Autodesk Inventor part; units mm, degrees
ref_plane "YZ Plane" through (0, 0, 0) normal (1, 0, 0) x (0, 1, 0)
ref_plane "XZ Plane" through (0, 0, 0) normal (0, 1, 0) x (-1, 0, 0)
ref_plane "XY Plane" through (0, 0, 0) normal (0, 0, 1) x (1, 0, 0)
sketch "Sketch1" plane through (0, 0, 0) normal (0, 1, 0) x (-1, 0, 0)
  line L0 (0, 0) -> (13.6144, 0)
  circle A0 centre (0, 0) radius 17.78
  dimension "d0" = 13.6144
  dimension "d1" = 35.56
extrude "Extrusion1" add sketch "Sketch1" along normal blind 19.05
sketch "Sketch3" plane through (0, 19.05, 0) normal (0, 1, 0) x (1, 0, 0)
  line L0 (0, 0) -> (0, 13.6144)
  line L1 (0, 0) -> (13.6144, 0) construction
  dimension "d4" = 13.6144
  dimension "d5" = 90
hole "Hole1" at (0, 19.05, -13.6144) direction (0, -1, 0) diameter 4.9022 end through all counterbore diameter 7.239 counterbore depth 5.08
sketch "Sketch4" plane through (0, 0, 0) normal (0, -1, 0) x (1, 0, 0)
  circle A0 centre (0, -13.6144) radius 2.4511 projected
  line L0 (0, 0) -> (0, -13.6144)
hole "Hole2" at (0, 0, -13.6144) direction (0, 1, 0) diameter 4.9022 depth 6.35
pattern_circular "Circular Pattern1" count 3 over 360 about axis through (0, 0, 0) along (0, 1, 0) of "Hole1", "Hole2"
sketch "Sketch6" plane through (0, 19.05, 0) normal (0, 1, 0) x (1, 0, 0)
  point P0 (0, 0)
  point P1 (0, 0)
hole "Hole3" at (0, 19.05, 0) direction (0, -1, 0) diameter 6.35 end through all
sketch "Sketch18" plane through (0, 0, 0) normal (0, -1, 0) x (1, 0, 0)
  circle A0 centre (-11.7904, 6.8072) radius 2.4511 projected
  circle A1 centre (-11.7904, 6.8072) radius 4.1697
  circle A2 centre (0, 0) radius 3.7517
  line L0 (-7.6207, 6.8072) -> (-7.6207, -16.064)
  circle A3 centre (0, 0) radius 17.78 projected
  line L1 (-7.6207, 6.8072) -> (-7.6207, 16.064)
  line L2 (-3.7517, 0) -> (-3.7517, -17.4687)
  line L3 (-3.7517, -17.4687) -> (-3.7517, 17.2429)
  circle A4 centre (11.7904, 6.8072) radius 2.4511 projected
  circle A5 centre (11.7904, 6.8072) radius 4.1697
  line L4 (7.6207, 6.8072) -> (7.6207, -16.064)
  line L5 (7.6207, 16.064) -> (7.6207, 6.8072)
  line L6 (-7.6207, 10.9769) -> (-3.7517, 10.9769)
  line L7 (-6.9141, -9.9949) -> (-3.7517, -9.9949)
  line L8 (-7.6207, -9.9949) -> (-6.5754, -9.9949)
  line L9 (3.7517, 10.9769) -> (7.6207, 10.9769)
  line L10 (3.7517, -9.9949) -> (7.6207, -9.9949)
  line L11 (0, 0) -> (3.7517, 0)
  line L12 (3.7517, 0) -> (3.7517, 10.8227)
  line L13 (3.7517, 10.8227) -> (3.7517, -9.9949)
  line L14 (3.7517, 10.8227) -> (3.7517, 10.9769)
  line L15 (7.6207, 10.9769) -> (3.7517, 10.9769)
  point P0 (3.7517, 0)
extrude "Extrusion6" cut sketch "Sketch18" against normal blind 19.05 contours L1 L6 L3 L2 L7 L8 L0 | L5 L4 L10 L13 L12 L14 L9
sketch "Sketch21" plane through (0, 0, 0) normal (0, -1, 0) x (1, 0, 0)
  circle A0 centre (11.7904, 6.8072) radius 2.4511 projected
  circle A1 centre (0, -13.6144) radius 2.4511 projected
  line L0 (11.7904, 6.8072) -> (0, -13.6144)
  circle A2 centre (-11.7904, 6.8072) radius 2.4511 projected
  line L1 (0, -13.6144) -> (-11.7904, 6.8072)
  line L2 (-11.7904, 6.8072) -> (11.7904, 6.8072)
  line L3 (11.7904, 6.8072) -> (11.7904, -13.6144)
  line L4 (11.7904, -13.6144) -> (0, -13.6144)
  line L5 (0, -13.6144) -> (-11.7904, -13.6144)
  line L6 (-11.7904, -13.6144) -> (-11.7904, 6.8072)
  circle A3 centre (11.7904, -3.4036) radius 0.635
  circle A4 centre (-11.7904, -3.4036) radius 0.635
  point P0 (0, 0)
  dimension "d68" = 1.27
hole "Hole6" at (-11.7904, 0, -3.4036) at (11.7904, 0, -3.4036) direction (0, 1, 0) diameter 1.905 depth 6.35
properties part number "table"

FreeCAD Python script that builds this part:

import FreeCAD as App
import Part
import Sketcher
Q = App.Units.Quantity

doc = App.newDocument("Part")
body = doc.addObject("PartDesign::Body", "Body")

# Sketch on XZ plane
sketch1 = doc.addObject("Sketcher::SketchObject", "Sketch")
body.addObject(sketch1)
sketch1.AttachmentSupport = (doc.XZ_Plane, [""])
sketch1.MapMode = "FlatFace"
sketch1.addGeometry(Part.Circle(App.Vector(0, 0, 0), App.Vector(0, 0, 1), 18), False)
sketch1.addConstraint(Sketcher.Constraint("Coincident", 0, 3, -1, 1))
sketch1.addConstraint(Sketcher.Constraint("Diameter", 0, Q("1.4 in")))
pad1 = doc.addObject("PartDesign::Pad", "Pad")
body.addObject(pad1)
pad1.Profile = sketch1
pad1.Length = Q("0.75 in")
pad1.Reversed = True

# Sketch on XZ plane
sketch2 = doc.addObject("Sketcher::SketchObject", "Sketch001")
body.addObject(sketch2)
sketch2.AttachmentSupport = (doc.XZ_Plane, [""])
sketch2.MapMode = "FlatFace"
sketch2.AttachmentOffset = App.Placement(App.Vector(0, 0, -0.75 * 25.4), App.Rotation())
sketch2.addGeometry(Part.Circle(App.Vector(0, -13.6, 0), App.Vector(0, 0, 1), 2.5), False)
sketch2.addConstraint(Sketcher.Constraint("PointOnObject", 0, 3, -2))
sketch2.addConstraint(Sketcher.Constraint("Diameter", 0, Q("0.193 in")))
sketch2.addConstraint(Sketcher.Constraint("DistanceY", 0, 3, -1, 1, Q("0.536 in")))
doc.recompute()
hole = doc.addObject("PartDesign::Hole", "Hole")
body.addObject(hole)
hole.Profile = sketch2
hole.ThreadType = "None"
hole.Diameter = Q("0.193 in")
hole.DepthType = "ThroughAll"
hole.HoleCutType = "Counterbore"
hole.HoleCutDiameter = Q("0.285 in")
hole.HoleCutDepth = Q("0.2 in")
hole.Reversed = True

# Sketch on XZ plane
sketch3 = doc.addObject("Sketcher::SketchObject", "Sketch002")
body.addObject(sketch3)
sketch3.AttachmentSupport = (doc.XZ_Plane, [""])
sketch3.MapMode = "FlatFace"
sketch3.addGeometry(Part.Circle(App.Vector(0, -13.6, 0), App.Vector(0, 0, 1), 2.5), False)
sketch3.addConstraint(Sketcher.Constraint("PointOnObject", 0, 3, -2))
sketch3.addConstraint(Sketcher.Constraint("Diameter", 0, Q("0.193 in")))
sketch3.addConstraint(Sketcher.Constraint("DistanceY", 0, 3, -1, 1, Q("0.536 in")))
doc.recompute()
hole2 = doc.addObject("PartDesign::Hole", "Hole001")
body.addObject(hole2)
hole2.Profile = sketch3
hole2.ThreadType = "None"
hole2.Diameter = Q("0.193 in")
hole2.DepthType = "Dimension"
hole2.Depth = Q("0.25 in")
hole2.DrillPoint = "Flat"
doc.recompute()

polarpattern = doc.addObject("PartDesign::PolarPattern", "PolarPattern")
body.addObject(polarpattern)
polarpattern.Originals = [hole, hole2]
polarpattern.Axis = (doc.Y_Axis, [""])
polarpattern.Angle = 360
polarpattern.Occurrences = 3
body.Tip = polarpattern

# Sketch on XZ plane
sketch4 = doc.addObject("Sketcher::SketchObject", "Sketch003")
body.addObject(sketch4)
sketch4.AttachmentSupport = (doc.XZ_Plane, [""])
sketch4.MapMode = "FlatFace"
sketch4.AttachmentOffset = App.Placement(App.Vector(0, 0, -0.75 * 25.4), App.Rotation())
sketch4.addGeometry(Part.Circle(App.Vector(0, 0, 0), App.Vector(0, 0, 1), 3.2), False)
sketch4.addConstraint(Sketcher.Constraint("Coincident", 0, 3, -1, 1))
sketch4.addConstraint(Sketcher.Constraint("Diameter", 0, Q("0.25 in")))
doc.recompute()
hole3 = doc.addObject("PartDesign::Hole", "Hole002")
body.addObject(hole3)
hole3.Profile = sketch4
hole3.ThreadType = "None"
hole3.Diameter = Q("0.25 in")
hole3.DepthType = "ThroughAll"
hole3.Reversed = True

# Sketch on XZ plane
sketch5 = doc.addObject("Sketcher::SketchObject", "Sketch004")
body.addObject(sketch5)
sketch5.AttachmentSupport = (doc.XZ_Plane, [""])
sketch5.MapMode = "FlatFace"
sketch5.addGeometry(Part.LineSegment(App.Vector(-7.6, 11, 0), App.Vector(-7.6, -10, 0)), False)
sketch5.addGeometry(Part.LineSegment(App.Vector(-7.6, -10, 0), App.Vector(-3.8, -10, 0)), False)
sketch5.addGeometry(Part.LineSegment(App.Vector(-3.8, -10, 0), App.Vector(-3.8, 11, 0)), False)
sketch5.addGeometry(Part.LineSegment(App.Vector(-3.8, 11, 0), App.Vector(-7.6, 11, 0)), False)
sketch5.addGeometry(Part.LineSegment(App.Vector(7.6, -10, 0), App.Vector(7.6, 11, 0)), False)
sketch5.addGeometry(Part.LineSegment(App.Vector(7.6, 11, 0), App.Vector(3.8, 11, 0)), False)
sketch5.addGeometry(Part.LineSegment(App.Vector(3.8, 11, 0), App.Vector(3.8, -10, 0)), False)
sketch5.addGeometry(Part.LineSegment(App.Vector(3.8, -10, 0), App.Vector(7.6, -10, 0)), False)
sketch5.addConstraint(Sketcher.Constraint("Coincident", 0, 2, 1, 1))
sketch5.addConstraint(Sketcher.Constraint("Coincident", 1, 2, 2, 1))
sketch5.addConstraint(Sketcher.Constraint("Coincident", 2, 2, 3, 1))
sketch5.addConstraint(Sketcher.Constraint("Coincident", 3, 2, 0, 1))
sketch5.addConstraint(Sketcher.Constraint("Coincident", 4, 2, 5, 1))
sketch5.addConstraint(Sketcher.Constraint("Coincident", 5, 2, 6, 1))
sketch5.addConstraint(Sketcher.Constraint("Coincident", 6, 2, 7, 1))
sketch5.addConstraint(Sketcher.Constraint("Coincident", 7, 2, 4, 1))
sketch5.addConstraint(Sketcher.Constraint("Vertical", 0))
sketch5.addConstraint(Sketcher.Constraint("Horizontal", 1))
sketch5.addConstraint(Sketcher.Constraint("Vertical", 2))
sketch5.addConstraint(Sketcher.Constraint("Horizontal", 3))
sketch5.addConstraint(Sketcher.Constraint("Vertical", 4))
sketch5.addConstraint(Sketcher.Constraint("Horizontal", 5))
sketch5.addConstraint(Sketcher.Constraint("Vertical", 6))
sketch5.addConstraint(Sketcher.Constraint("Horizontal", 7))
sketch5.addConstraint(Sketcher.Constraint("Symmetric", 3, 2, 4, 2, -2))
sketch5.addConstraint(Sketcher.Constraint("Symmetric", 1, 2, 6, 2, -2))
sketch5.addConstraint(Sketcher.Constraint("DistanceX", 1, 1, 1, 2, 3.869))
sketch5.addConstraint(Sketcher.Constraint("DistanceY", 0, 2, 0, 1, 20.9718))
sketch5.addConstraint(Sketcher.Constraint("DistanceY", 0, 2, -1, 1, Q("0.3935 in")))
sketch5.addConstraint(Sketcher.Constraint("DistanceX", 1, 2, -1, 1, Q("0.1477 in")))
pocket1 = doc.addObject("PartDesign::Pocket", "Pocket")
body.addObject(pocket1)
pocket1.Profile = sketch5
pocket1.Length = Q("0.75 in")

# Sketch on XZ plane
sketch6 = doc.addObject("Sketcher::SketchObject", "Sketch005")
body.addObject(sketch6)
sketch6.AttachmentSupport = (doc.XZ_Plane, [""])
sketch6.MapMode = "FlatFace"
sketch6.addGeometry(Part.Circle(App.Vector(-11.8, -3.4, 0), App.Vector(0, 0, 1), 1), False)
sketch6.addGeometry(Part.Circle(App.Vector(11.8, -3.4, 0), App.Vector(0, 0, 1), 1), False)
sketch6.addConstraint(Sketcher.Constraint("Equal", 0, 1))
sketch6.addConstraint(Sketcher.Constraint("Symmetric", 0, 3, 1, 3, -2))
sketch6.addConstraint(Sketcher.Constraint("Diameter", 0, Q("0.075 in")))
sketch6.addConstraint(Sketcher.Constraint("DistanceY", 0, 3, -1, 1, Q("0.134 in")))
sketch6.addConstraint(Sketcher.Constraint("DistanceX", 0, 3, -1, 1, Q("0.4642 in")))
doc.recompute()
hole4 = doc.addObject("PartDesign::Hole", "Hole003")
body.addObject(hole4)
hole4.Profile = sketch6
hole4.ThreadType = "None"
hole4.Diameter = Q("0.075 in")
hole4.DepthType = "Dimension"
hole4.Depth = Q("0.25 in")
hole4.DrillPoint = "Flat"

doc.recompute()
